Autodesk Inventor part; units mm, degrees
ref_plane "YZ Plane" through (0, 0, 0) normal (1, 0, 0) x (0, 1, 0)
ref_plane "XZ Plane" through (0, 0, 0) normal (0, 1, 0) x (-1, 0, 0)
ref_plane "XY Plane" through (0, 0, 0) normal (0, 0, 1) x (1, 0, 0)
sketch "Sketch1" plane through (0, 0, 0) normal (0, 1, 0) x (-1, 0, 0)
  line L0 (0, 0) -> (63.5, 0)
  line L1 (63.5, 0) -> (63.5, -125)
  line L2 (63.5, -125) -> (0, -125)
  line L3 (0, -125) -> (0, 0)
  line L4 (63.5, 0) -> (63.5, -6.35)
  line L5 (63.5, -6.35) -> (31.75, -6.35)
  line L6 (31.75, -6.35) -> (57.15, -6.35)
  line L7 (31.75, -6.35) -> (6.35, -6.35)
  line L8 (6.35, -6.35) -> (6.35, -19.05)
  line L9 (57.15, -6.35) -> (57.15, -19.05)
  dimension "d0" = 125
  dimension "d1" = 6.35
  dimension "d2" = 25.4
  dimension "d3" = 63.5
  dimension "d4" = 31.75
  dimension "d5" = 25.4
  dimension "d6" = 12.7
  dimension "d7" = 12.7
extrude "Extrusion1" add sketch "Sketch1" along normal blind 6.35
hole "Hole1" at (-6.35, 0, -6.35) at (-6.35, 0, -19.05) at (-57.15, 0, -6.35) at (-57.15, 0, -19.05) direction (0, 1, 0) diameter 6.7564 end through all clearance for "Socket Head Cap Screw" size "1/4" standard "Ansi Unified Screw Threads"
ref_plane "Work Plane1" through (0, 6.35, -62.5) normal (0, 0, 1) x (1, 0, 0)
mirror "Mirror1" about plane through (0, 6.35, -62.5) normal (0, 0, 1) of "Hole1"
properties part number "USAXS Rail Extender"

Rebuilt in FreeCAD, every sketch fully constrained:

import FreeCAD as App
import Part
import Sketcher

V = App.Vector
Q = App.Units.Quantity


def add_polygon(sketch, points):
    """Adds a closed chain of lines whose ends are joined by coincident constraints."""
    first, n = sketch.GeometryCount, len(points)
    for a, b in zip(points, points[1:] + points[:1]):
        sketch.addGeometry(Part.LineSegment(App.Vector(*a, 0), App.Vector(*b, 0)), False)
    for i in range(n):
        sketch.addConstraint(Sketcher.Constraint("Coincident", first + i, 2, first + (i + 1) % n, 1))

doc = App.newDocument("Part")
body = doc.addObject("PartDesign::Body", "Body")

# Sketch on XZ plane
sketch1 = doc.addObject("Sketcher::SketchObject", "Sketch")
body.addObject(sketch1)
sketch1.AttachmentSupport = (doc.XZ_Plane, [""])
sketch1.MapMode = "FlatFace"
add_polygon(sketch1, [(-64, 0), (0, 0), (0, -125), (-64, -125)])  # lines 0-3
sketch1.addConstraint([
    Sketcher.Constraint("Horizontal", 0),
    Sketcher.Constraint("Vertical", 1),
    Sketcher.Constraint("Horizontal", 2),
    Sketcher.Constraint("Vertical", 3),
    Sketcher.Constraint("Coincident", 0, 2, -1, 1),
    Sketcher.Constraint("DistanceX", 0, 1, 0, 2, Q("2.5 in")),
    Sketcher.Constraint("DistanceY", 1, 2, 1, 1, Q("125 mm")),
])
pad1 = doc.addObject("PartDesign::Pad", "Pad")
body.addObject(pad1)
pad1.Profile = sketch1
pad1.Length = Q("0.25 in")
pad1.Reversed = True

# Sketch on XZ plane
sketch2 = doc.addObject("Sketcher::SketchObject", "Sketch001")
body.addObject(sketch2)
sketch2.AttachmentSupport = (doc.XZ_Plane, [""])
sketch2.MapMode = "FlatFace"
sketch2.addGeometry([
    Part.Circle(V(-6.3, -6.3, 0), V(0, 0, 1), 3.4),
    Part.Circle(V(-6.3, -19.1, 0), V(0, 0, 1), 3.4),
    Part.Circle(V(-57.1, -6.3, 0), V(0, 0, 1), 3.4),
    Part.Circle(V(-57.1, -19.1, 0), V(0, 0, 1), 3.4),
], False)
sketch2.addConstraint([
    Sketcher.Constraint("Equal", 0, 1),
    Sketcher.Constraint("Equal", 1, 2),
    Sketcher.Constraint("Equal", 2, 3),
    Sketcher.Constraint("Horizontal", 0, 3, 2, 3),
    Sketcher.Constraint("Horizontal", 1, 3, 3, 3),
    Sketcher.Constraint("Vertical", 0, 3, 1, 3),
    Sketcher.Constraint("Vertical", 2, 3, 3, 3),
    Sketcher.Constraint("Diameter", 0, Q("0.266 in")),
    Sketcher.Constraint("DistanceX", 2, 3, 0, 3, Q("2 in")),
    Sketcher.Constraint("DistanceY", 1, 3, 0, 3, Q("0.5 in")),
    Sketcher.Constraint("DistanceX", 0, 3, -1, 1, Q("0.25 in")),
    Sketcher.Constraint("DistanceY", 0, 3, -1, 1, Q("0.25 in")),
])
doc.recompute()
hole = doc.addObject("PartDesign::Hole", "Hole")
body.addObject(hole)
hole.Profile = sketch2
hole.ThreadType = "None"
hole.Diameter = Q("0.266 in")
hole.DepthType = "ThroughAll"
doc.recompute()

datumplane = doc.addObject("PartDesign::Plane", "DatumPlane")
body.addObject(datumplane)
datumplane.AttachmentSupport = (doc.XY_Plane, [""])
datumplane.MapMode = "FlatFace"
datumplane.AttachmentOffset = App.Placement(V(0, 0, -62.5), App.Rotation())
mirrored = doc.addObject("PartDesign::Mirrored", "Mirrored")
body.addObject(mirrored)
mirrored.Originals = [hole]
mirrored.MirrorPlane = (datumplane, [""])
body.Tip = mirrored

doc.recompute()
